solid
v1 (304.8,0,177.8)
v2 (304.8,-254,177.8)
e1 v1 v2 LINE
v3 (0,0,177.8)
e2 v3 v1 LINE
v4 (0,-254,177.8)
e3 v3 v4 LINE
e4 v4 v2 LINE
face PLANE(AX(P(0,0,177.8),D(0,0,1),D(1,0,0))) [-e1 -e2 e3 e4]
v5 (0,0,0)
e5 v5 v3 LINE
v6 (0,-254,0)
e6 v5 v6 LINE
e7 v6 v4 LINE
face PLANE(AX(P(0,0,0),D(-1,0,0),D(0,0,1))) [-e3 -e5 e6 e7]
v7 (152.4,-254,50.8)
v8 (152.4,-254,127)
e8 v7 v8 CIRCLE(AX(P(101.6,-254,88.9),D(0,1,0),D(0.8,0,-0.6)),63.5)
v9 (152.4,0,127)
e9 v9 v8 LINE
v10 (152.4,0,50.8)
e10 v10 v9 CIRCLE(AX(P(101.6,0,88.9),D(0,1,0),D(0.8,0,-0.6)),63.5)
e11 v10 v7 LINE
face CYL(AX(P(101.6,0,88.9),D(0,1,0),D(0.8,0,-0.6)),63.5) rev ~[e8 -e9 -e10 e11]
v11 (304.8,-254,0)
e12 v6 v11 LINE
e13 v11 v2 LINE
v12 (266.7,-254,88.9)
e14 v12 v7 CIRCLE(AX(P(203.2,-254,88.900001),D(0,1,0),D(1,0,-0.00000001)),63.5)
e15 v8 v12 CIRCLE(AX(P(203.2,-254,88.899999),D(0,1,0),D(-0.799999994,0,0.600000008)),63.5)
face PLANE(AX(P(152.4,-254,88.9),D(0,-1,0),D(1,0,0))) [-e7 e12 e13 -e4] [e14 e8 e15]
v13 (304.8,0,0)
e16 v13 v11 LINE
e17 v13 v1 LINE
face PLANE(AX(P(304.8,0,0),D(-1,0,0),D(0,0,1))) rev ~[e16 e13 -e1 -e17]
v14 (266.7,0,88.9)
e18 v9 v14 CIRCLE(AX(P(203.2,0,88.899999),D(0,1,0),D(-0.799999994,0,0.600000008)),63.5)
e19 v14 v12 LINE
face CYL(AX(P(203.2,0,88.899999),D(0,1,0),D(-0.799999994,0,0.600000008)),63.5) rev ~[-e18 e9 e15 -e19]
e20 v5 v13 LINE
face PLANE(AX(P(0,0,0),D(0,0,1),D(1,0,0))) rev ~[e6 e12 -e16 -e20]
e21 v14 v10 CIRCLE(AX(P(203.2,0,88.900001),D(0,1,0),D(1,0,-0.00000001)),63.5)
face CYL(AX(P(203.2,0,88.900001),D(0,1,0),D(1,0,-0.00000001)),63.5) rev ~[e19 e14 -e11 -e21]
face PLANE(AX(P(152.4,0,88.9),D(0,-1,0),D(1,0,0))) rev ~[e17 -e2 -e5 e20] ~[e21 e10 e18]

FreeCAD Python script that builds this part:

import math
import FreeCAD as App
import Part
import Sketcher

V = App.Vector
Q = App.Units.Quantity

doc = App.newDocument("Part")
body = doc.addObject("PartDesign::Body", "Body")

sketch1 = doc.addObject("Sketcher::SketchObject", "Sketch")
body.addObject(sketch1)
sketch1.AttachmentSupport = (doc.XZ_Plane, [""])
sketch1.MapMode = "FlatFace"
sketch1.addGeometry(Part.LineSegment(V(0, 177.8, 0), V(0, 0, 0)), False)
sketch1.addGeometry(Part.LineSegment(V(0, 0, 0), V(304.8, 0, 0)), False)
sketch1.addGeometry(Part.LineSegment(V(304.8, 0, 0), V(304.8, 177.8, 0)), False)
sketch1.addGeometry(Part.LineSegment(V(304.8, 177.8, 0), V(0, 177.8, 0)), False)
sketch1.addGeometry(Part.ArcOfCircle(Part.Circle(V(203.2, 88.900001, 0), V(0, 0, 1), 63.5), math.radians(-143.130102), math.radians(-0.000001)), False)
sketch1.addGeometry(Part.ArcOfCircle(Part.Circle(V(101.6, 88.9, 0), V(0, 0, 1), 63.5), math.radians(36.869898), math.radians(323.130102)), False)
sketch1.addGeometry(Part.ArcOfCircle(Part.Circle(V(203.2, 88.899999, 0), V(0, 0, 1), 63.5), math.radians(0.000001), math.radians(143.130102)), False)
sketch1.addConstraint(Sketcher.Constraint("Coincident", 0, 2, 1, 1))
sketch1.addConstraint(Sketcher.Constraint("Coincident", 1, 2, 2, 1))
sketch1.addConstraint(Sketcher.Constraint("Coincident", 2, 2, 3, 1))
sketch1.addConstraint(Sketcher.Constraint("Coincident", 3, 2, 0, 1))
sketch1.addConstraint(Sketcher.Constraint("Coincident", 4, 1, 5, 2))
sketch1.addConstraint(Sketcher.Constraint("Coincident", 5, 1, 6, 2))
sketch1.addConstraint(Sketcher.Constraint("Tangent", 6, 1, 4, 2))
sketch1.addConstraint(Sketcher.Constraint("Vertical", 0))
sketch1.addConstraint(Sketcher.Constraint("Horizontal", 1))
sketch1.addConstraint(Sketcher.Constraint("Vertical", 2))
sketch1.addConstraint(Sketcher.Constraint("Horizontal", 3))
sketch1.addConstraint(Sketcher.Constraint("Coincident", 0, 2, -1, 1))
sketch1.addConstraint(Sketcher.Constraint("Equal", 4, 5))
sketch1.addConstraint(Sketcher.Constraint("Equal", 5, 6))
sketch1.addConstraint(Sketcher.Constraint("Horizontal", 4, 3, 5, 3))
sketch1.addConstraint(Sketcher.Constraint("Horizontal", 5, 3, 6, 1))
sketch1.addConstraint(Sketcher.Constraint("Radius", 4, Q("2.5 in")))
sketch1.addConstraint(Sketcher.Constraint("DistanceX", 1, 1, 1, 2, Q("12 in")))
sketch1.addConstraint(Sketcher.Constraint("DistanceY", 0, 2, 0, 1, Q("7 in")))
sketch1.addConstraint(Sketcher.Constraint("DistanceX", -1, 1, 4, 3, Q("8 in")))
sketch1.addConstraint(Sketcher.Constraint("DistanceX", -1, 1, 5, 3, Q("4 in")))
sketch1.addConstraint(Sketcher.Constraint("DistanceY", -1, 1, 4, 1, Q("2 in")))
pad1 = doc.addObject("PartDesign::Pad", "Pad")
body.addObject(pad1)
pad1.Profile = sketch1
pad1.Length = Q("10 in")

doc.recompute()
